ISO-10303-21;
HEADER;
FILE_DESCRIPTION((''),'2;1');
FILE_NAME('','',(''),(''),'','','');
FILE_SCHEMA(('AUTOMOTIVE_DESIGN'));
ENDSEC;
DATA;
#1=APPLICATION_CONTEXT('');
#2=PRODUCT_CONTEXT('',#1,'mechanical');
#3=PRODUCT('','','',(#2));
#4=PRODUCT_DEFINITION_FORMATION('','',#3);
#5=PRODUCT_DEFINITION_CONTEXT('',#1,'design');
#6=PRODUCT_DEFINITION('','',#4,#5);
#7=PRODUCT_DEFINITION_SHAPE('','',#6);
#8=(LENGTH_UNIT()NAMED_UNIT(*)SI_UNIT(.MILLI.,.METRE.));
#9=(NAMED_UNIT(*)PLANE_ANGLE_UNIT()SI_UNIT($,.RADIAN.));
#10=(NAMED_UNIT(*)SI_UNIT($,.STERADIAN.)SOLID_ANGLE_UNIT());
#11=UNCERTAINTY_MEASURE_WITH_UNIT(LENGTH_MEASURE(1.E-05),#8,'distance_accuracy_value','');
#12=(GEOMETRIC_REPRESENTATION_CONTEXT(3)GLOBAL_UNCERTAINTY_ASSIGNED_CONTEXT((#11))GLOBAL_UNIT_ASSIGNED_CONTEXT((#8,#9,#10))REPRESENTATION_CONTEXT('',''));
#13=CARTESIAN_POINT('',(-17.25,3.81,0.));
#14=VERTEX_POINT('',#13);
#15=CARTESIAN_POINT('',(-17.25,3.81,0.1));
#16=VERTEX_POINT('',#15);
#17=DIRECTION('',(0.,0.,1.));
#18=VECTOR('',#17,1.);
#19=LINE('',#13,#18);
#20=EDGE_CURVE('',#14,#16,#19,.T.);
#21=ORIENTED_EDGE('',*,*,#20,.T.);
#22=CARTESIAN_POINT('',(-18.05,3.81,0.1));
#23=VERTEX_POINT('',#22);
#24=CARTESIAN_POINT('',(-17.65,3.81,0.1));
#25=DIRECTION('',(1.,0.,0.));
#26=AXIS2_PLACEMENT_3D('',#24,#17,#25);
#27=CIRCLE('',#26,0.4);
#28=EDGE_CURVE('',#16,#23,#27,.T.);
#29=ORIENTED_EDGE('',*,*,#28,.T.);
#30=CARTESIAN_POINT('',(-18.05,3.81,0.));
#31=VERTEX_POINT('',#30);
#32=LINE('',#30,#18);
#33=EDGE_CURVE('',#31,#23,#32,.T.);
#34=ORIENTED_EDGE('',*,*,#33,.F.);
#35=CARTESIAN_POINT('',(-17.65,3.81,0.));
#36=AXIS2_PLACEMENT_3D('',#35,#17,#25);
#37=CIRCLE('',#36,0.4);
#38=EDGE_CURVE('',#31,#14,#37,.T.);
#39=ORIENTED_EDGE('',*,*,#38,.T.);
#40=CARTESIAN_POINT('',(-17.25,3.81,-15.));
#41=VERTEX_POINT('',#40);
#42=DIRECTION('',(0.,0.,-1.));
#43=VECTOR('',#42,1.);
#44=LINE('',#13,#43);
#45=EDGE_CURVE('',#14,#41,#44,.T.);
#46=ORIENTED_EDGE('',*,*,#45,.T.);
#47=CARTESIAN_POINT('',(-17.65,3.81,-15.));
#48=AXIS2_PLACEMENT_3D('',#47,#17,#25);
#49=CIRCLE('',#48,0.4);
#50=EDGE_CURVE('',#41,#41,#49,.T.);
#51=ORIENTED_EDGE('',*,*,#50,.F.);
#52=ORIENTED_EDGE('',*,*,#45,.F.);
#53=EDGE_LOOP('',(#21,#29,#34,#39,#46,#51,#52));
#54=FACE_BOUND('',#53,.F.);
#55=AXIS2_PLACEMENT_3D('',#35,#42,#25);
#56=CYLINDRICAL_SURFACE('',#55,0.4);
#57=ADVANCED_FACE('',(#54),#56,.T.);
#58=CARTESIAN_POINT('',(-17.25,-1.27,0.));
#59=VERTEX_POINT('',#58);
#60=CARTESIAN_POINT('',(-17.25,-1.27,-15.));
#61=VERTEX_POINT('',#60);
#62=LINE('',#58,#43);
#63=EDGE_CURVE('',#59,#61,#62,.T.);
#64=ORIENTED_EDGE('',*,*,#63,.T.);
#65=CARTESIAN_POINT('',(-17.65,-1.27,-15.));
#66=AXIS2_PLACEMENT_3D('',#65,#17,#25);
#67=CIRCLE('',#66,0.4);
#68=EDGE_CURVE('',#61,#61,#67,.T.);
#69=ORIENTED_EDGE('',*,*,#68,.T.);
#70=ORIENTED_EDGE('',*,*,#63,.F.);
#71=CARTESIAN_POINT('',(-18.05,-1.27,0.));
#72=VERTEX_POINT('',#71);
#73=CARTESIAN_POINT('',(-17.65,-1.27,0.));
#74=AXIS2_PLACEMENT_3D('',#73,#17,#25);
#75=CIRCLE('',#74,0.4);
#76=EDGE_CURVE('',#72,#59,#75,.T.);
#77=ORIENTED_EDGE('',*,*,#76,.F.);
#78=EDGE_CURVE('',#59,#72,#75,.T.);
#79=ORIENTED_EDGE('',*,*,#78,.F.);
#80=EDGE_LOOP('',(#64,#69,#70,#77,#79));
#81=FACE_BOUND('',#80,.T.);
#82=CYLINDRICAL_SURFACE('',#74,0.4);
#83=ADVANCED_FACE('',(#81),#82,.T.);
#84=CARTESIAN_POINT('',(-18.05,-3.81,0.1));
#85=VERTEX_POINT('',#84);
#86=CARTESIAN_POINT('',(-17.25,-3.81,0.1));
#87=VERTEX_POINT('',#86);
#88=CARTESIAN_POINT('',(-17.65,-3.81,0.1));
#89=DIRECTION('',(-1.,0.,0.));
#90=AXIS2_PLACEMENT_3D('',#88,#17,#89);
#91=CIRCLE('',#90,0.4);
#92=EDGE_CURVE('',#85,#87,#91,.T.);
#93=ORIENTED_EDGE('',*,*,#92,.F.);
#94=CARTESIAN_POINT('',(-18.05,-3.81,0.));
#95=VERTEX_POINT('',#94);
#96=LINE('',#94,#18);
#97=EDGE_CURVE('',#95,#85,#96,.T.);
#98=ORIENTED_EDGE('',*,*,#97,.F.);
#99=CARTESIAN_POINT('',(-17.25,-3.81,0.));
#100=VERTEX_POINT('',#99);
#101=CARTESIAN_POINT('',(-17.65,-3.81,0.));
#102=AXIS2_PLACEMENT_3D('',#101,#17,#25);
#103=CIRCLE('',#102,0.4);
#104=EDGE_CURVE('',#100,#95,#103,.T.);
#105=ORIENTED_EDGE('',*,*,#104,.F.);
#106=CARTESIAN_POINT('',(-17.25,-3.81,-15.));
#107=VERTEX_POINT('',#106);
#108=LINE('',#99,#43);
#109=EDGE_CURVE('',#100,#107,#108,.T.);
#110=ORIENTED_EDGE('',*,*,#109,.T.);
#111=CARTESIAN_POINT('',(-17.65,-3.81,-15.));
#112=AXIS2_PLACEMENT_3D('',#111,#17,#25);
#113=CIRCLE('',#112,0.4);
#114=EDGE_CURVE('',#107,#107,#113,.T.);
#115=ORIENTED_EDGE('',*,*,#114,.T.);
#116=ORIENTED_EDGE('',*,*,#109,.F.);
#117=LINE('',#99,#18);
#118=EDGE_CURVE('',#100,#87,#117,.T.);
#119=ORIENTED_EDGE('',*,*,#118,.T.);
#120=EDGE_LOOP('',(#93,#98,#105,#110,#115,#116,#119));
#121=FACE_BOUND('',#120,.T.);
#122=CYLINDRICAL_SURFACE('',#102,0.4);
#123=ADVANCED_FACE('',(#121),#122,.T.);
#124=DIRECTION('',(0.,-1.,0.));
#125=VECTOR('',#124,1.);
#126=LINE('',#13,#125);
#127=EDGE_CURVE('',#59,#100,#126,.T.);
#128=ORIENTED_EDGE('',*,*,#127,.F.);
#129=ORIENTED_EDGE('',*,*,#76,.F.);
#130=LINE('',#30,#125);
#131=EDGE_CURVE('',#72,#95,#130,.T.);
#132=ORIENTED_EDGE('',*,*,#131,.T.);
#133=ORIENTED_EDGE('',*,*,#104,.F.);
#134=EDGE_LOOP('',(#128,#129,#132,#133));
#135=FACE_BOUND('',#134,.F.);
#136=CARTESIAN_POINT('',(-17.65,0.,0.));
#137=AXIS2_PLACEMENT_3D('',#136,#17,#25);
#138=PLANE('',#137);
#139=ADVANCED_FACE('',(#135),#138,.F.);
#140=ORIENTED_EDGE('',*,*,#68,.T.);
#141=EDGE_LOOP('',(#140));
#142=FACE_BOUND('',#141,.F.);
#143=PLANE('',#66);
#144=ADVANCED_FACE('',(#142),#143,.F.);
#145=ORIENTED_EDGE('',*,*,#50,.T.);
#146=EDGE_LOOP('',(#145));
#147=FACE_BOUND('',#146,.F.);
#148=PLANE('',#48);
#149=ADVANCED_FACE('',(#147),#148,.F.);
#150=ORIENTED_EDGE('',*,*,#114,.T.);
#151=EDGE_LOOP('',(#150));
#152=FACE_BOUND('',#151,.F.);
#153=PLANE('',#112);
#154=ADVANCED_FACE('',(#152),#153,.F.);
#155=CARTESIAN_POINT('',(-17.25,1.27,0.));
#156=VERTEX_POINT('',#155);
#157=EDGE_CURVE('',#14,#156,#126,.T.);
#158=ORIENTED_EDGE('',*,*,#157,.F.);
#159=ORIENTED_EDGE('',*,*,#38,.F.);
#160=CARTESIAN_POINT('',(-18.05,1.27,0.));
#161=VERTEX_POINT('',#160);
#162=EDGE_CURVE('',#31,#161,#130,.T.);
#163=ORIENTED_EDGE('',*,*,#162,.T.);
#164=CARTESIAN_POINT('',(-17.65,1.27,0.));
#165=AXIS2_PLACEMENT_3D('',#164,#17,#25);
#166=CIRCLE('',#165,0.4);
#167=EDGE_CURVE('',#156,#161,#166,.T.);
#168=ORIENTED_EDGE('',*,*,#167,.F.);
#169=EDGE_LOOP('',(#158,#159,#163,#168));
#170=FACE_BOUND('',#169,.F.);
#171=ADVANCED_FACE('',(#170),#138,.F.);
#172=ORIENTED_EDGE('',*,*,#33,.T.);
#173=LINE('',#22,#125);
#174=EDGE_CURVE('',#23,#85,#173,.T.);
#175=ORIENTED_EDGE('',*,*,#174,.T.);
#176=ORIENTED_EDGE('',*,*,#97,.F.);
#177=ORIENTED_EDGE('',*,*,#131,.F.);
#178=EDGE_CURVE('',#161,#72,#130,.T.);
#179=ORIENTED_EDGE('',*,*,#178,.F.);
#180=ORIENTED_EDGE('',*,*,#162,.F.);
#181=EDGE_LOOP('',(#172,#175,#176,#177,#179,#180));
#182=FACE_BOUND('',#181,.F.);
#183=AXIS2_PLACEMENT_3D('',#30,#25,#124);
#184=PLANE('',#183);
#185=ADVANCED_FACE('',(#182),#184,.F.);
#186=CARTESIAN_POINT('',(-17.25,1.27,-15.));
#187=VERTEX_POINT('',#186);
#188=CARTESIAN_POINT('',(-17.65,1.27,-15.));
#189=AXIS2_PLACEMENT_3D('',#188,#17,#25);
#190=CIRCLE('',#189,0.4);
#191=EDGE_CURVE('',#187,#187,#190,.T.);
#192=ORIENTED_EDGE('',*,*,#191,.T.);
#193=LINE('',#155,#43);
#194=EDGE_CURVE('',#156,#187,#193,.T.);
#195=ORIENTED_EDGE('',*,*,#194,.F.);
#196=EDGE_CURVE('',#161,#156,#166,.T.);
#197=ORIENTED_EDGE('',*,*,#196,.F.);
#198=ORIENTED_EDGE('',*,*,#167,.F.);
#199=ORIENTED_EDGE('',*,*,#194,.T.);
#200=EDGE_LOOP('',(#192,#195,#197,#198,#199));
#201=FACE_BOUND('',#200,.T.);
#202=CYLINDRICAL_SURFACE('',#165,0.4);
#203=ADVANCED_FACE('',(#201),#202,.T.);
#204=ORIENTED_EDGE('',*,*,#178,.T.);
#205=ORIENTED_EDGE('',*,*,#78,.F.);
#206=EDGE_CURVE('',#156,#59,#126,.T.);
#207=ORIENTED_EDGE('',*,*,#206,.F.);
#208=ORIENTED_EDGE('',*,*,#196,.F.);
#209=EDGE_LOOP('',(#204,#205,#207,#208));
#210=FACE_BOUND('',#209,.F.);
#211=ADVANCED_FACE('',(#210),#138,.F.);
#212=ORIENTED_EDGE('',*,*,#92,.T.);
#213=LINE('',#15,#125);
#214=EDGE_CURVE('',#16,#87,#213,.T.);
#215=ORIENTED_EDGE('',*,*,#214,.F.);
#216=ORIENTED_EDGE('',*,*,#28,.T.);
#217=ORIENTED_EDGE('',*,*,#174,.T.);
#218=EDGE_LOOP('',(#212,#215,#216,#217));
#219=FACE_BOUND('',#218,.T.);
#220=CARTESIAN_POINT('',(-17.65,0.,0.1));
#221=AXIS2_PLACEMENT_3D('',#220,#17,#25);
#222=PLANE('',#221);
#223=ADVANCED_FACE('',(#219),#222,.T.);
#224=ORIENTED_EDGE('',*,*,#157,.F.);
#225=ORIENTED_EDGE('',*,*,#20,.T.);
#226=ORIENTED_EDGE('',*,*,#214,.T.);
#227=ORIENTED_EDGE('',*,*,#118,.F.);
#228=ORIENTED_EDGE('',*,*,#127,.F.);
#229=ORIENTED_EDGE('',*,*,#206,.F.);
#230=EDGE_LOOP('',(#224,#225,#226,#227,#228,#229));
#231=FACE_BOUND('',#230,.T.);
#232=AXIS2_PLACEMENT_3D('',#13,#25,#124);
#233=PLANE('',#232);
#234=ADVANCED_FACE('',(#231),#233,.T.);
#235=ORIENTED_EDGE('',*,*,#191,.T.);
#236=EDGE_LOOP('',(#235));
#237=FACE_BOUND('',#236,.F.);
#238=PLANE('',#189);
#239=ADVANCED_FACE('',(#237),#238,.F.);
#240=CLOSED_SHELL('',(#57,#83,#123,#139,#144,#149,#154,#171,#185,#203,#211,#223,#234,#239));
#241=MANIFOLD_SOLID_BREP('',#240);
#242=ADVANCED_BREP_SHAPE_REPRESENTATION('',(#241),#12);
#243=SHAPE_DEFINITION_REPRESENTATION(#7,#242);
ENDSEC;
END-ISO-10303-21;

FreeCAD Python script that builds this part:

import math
import FreeCAD as App
import Part
import Sketcher

doc = App.newDocument("Part")
body = doc.addObject("PartDesign::Body", "Body")

# Sketch on XY plane
sketch1 = body.newObject("Sketcher::SketchObject", "Sketch")
sketch1.AttachmentSupport = (doc.getObject("XY_Plane"), [""])
sketch1.MapMode = "FlatFace"
sketch1.addGeometry([
    Part.ArcOfCircle(Part.Circle(App.Vector(-17.65, 3.81, 0), App.Vector(0, 0, 1), 0.4), math.radians(0), math.radians(180)),
    Part.LineSegment(App.Vector(-18.05, 3.81, 0), App.Vector(-18.05, -3.81, 0)),
    Part.ArcOfCircle(Part.Circle(App.Vector(-17.65, -3.81, 0), App.Vector(0, 0, 1), 0.4), math.radians(180), math.radians(360)),
    Part.LineSegment(App.Vector(-17.25, -3.81, 0), App.Vector(-17.25, 3.81, 0)),
], False)
sketch1.addConstraint([
    Sketcher.Constraint("Tangent", 0, 2, 1, 1),
    Sketcher.Constraint("Tangent", 1, 2, 2, 1),
    Sketcher.Constraint("Tangent", 2, 2, 3, 1),
    Sketcher.Constraint("Tangent", 3, 2, 0, 1),
    Sketcher.Constraint("Vertical", 1),
    Sketcher.Constraint("Vertical", 3),
    Sketcher.Constraint("Radius", 0, 0.4),
    Sketcher.Constraint("DistanceY", 1, 2, 1, 1, 7.62),
    Sketcher.Constraint("DistanceX", 0, 3, -1, 1, 17.65),
    Sketcher.Constraint("DistanceY", -1, 1, 0, 3, 3.81),
])
pad1 = body.newObject("PartDesign::Pad", "Pad")
pad1.Profile = sketch1
pad1.Length = 0.1

# Sketch on XY plane
sketch2 = body.newObject("Sketcher::SketchObject", "Sketch001")
sketch2.AttachmentSupport = (doc.getObject("XY_Plane"), [""])
sketch2.MapMode = "FlatFace"
sketch2.addGeometry(Part.Circle(App.Vector(-17.65, -3.81, 0), App.Vector(0, 0, 1), 0.4), False)
sketch2.addConstraint([
    Sketcher.Constraint("Diameter", 0, 0.8),
    Sketcher.Constraint("DistanceX", 0, 3, -1, 1, 17.65),
    Sketcher.Constraint("DistanceY", 0, 3, -1, 1, 3.81),
])
pad2 = body.newObject("PartDesign::Pad", "Pad001")
pad2.Profile = sketch2
pad2.Length = 15
pad2.Reversed = True
doc.recompute()

linearpattern = body.newObject("PartDesign::LinearPattern", "LinearPattern")
linearpattern.Originals = [pad2]
linearpattern.Direction = (doc.getObject("Y_Axis"), [""])
linearpattern.Mode = "offset"
linearpattern.Offset = 2.54
linearpattern.Occurrences = 4
body.Tip = linearpattern

doc.recompute()
